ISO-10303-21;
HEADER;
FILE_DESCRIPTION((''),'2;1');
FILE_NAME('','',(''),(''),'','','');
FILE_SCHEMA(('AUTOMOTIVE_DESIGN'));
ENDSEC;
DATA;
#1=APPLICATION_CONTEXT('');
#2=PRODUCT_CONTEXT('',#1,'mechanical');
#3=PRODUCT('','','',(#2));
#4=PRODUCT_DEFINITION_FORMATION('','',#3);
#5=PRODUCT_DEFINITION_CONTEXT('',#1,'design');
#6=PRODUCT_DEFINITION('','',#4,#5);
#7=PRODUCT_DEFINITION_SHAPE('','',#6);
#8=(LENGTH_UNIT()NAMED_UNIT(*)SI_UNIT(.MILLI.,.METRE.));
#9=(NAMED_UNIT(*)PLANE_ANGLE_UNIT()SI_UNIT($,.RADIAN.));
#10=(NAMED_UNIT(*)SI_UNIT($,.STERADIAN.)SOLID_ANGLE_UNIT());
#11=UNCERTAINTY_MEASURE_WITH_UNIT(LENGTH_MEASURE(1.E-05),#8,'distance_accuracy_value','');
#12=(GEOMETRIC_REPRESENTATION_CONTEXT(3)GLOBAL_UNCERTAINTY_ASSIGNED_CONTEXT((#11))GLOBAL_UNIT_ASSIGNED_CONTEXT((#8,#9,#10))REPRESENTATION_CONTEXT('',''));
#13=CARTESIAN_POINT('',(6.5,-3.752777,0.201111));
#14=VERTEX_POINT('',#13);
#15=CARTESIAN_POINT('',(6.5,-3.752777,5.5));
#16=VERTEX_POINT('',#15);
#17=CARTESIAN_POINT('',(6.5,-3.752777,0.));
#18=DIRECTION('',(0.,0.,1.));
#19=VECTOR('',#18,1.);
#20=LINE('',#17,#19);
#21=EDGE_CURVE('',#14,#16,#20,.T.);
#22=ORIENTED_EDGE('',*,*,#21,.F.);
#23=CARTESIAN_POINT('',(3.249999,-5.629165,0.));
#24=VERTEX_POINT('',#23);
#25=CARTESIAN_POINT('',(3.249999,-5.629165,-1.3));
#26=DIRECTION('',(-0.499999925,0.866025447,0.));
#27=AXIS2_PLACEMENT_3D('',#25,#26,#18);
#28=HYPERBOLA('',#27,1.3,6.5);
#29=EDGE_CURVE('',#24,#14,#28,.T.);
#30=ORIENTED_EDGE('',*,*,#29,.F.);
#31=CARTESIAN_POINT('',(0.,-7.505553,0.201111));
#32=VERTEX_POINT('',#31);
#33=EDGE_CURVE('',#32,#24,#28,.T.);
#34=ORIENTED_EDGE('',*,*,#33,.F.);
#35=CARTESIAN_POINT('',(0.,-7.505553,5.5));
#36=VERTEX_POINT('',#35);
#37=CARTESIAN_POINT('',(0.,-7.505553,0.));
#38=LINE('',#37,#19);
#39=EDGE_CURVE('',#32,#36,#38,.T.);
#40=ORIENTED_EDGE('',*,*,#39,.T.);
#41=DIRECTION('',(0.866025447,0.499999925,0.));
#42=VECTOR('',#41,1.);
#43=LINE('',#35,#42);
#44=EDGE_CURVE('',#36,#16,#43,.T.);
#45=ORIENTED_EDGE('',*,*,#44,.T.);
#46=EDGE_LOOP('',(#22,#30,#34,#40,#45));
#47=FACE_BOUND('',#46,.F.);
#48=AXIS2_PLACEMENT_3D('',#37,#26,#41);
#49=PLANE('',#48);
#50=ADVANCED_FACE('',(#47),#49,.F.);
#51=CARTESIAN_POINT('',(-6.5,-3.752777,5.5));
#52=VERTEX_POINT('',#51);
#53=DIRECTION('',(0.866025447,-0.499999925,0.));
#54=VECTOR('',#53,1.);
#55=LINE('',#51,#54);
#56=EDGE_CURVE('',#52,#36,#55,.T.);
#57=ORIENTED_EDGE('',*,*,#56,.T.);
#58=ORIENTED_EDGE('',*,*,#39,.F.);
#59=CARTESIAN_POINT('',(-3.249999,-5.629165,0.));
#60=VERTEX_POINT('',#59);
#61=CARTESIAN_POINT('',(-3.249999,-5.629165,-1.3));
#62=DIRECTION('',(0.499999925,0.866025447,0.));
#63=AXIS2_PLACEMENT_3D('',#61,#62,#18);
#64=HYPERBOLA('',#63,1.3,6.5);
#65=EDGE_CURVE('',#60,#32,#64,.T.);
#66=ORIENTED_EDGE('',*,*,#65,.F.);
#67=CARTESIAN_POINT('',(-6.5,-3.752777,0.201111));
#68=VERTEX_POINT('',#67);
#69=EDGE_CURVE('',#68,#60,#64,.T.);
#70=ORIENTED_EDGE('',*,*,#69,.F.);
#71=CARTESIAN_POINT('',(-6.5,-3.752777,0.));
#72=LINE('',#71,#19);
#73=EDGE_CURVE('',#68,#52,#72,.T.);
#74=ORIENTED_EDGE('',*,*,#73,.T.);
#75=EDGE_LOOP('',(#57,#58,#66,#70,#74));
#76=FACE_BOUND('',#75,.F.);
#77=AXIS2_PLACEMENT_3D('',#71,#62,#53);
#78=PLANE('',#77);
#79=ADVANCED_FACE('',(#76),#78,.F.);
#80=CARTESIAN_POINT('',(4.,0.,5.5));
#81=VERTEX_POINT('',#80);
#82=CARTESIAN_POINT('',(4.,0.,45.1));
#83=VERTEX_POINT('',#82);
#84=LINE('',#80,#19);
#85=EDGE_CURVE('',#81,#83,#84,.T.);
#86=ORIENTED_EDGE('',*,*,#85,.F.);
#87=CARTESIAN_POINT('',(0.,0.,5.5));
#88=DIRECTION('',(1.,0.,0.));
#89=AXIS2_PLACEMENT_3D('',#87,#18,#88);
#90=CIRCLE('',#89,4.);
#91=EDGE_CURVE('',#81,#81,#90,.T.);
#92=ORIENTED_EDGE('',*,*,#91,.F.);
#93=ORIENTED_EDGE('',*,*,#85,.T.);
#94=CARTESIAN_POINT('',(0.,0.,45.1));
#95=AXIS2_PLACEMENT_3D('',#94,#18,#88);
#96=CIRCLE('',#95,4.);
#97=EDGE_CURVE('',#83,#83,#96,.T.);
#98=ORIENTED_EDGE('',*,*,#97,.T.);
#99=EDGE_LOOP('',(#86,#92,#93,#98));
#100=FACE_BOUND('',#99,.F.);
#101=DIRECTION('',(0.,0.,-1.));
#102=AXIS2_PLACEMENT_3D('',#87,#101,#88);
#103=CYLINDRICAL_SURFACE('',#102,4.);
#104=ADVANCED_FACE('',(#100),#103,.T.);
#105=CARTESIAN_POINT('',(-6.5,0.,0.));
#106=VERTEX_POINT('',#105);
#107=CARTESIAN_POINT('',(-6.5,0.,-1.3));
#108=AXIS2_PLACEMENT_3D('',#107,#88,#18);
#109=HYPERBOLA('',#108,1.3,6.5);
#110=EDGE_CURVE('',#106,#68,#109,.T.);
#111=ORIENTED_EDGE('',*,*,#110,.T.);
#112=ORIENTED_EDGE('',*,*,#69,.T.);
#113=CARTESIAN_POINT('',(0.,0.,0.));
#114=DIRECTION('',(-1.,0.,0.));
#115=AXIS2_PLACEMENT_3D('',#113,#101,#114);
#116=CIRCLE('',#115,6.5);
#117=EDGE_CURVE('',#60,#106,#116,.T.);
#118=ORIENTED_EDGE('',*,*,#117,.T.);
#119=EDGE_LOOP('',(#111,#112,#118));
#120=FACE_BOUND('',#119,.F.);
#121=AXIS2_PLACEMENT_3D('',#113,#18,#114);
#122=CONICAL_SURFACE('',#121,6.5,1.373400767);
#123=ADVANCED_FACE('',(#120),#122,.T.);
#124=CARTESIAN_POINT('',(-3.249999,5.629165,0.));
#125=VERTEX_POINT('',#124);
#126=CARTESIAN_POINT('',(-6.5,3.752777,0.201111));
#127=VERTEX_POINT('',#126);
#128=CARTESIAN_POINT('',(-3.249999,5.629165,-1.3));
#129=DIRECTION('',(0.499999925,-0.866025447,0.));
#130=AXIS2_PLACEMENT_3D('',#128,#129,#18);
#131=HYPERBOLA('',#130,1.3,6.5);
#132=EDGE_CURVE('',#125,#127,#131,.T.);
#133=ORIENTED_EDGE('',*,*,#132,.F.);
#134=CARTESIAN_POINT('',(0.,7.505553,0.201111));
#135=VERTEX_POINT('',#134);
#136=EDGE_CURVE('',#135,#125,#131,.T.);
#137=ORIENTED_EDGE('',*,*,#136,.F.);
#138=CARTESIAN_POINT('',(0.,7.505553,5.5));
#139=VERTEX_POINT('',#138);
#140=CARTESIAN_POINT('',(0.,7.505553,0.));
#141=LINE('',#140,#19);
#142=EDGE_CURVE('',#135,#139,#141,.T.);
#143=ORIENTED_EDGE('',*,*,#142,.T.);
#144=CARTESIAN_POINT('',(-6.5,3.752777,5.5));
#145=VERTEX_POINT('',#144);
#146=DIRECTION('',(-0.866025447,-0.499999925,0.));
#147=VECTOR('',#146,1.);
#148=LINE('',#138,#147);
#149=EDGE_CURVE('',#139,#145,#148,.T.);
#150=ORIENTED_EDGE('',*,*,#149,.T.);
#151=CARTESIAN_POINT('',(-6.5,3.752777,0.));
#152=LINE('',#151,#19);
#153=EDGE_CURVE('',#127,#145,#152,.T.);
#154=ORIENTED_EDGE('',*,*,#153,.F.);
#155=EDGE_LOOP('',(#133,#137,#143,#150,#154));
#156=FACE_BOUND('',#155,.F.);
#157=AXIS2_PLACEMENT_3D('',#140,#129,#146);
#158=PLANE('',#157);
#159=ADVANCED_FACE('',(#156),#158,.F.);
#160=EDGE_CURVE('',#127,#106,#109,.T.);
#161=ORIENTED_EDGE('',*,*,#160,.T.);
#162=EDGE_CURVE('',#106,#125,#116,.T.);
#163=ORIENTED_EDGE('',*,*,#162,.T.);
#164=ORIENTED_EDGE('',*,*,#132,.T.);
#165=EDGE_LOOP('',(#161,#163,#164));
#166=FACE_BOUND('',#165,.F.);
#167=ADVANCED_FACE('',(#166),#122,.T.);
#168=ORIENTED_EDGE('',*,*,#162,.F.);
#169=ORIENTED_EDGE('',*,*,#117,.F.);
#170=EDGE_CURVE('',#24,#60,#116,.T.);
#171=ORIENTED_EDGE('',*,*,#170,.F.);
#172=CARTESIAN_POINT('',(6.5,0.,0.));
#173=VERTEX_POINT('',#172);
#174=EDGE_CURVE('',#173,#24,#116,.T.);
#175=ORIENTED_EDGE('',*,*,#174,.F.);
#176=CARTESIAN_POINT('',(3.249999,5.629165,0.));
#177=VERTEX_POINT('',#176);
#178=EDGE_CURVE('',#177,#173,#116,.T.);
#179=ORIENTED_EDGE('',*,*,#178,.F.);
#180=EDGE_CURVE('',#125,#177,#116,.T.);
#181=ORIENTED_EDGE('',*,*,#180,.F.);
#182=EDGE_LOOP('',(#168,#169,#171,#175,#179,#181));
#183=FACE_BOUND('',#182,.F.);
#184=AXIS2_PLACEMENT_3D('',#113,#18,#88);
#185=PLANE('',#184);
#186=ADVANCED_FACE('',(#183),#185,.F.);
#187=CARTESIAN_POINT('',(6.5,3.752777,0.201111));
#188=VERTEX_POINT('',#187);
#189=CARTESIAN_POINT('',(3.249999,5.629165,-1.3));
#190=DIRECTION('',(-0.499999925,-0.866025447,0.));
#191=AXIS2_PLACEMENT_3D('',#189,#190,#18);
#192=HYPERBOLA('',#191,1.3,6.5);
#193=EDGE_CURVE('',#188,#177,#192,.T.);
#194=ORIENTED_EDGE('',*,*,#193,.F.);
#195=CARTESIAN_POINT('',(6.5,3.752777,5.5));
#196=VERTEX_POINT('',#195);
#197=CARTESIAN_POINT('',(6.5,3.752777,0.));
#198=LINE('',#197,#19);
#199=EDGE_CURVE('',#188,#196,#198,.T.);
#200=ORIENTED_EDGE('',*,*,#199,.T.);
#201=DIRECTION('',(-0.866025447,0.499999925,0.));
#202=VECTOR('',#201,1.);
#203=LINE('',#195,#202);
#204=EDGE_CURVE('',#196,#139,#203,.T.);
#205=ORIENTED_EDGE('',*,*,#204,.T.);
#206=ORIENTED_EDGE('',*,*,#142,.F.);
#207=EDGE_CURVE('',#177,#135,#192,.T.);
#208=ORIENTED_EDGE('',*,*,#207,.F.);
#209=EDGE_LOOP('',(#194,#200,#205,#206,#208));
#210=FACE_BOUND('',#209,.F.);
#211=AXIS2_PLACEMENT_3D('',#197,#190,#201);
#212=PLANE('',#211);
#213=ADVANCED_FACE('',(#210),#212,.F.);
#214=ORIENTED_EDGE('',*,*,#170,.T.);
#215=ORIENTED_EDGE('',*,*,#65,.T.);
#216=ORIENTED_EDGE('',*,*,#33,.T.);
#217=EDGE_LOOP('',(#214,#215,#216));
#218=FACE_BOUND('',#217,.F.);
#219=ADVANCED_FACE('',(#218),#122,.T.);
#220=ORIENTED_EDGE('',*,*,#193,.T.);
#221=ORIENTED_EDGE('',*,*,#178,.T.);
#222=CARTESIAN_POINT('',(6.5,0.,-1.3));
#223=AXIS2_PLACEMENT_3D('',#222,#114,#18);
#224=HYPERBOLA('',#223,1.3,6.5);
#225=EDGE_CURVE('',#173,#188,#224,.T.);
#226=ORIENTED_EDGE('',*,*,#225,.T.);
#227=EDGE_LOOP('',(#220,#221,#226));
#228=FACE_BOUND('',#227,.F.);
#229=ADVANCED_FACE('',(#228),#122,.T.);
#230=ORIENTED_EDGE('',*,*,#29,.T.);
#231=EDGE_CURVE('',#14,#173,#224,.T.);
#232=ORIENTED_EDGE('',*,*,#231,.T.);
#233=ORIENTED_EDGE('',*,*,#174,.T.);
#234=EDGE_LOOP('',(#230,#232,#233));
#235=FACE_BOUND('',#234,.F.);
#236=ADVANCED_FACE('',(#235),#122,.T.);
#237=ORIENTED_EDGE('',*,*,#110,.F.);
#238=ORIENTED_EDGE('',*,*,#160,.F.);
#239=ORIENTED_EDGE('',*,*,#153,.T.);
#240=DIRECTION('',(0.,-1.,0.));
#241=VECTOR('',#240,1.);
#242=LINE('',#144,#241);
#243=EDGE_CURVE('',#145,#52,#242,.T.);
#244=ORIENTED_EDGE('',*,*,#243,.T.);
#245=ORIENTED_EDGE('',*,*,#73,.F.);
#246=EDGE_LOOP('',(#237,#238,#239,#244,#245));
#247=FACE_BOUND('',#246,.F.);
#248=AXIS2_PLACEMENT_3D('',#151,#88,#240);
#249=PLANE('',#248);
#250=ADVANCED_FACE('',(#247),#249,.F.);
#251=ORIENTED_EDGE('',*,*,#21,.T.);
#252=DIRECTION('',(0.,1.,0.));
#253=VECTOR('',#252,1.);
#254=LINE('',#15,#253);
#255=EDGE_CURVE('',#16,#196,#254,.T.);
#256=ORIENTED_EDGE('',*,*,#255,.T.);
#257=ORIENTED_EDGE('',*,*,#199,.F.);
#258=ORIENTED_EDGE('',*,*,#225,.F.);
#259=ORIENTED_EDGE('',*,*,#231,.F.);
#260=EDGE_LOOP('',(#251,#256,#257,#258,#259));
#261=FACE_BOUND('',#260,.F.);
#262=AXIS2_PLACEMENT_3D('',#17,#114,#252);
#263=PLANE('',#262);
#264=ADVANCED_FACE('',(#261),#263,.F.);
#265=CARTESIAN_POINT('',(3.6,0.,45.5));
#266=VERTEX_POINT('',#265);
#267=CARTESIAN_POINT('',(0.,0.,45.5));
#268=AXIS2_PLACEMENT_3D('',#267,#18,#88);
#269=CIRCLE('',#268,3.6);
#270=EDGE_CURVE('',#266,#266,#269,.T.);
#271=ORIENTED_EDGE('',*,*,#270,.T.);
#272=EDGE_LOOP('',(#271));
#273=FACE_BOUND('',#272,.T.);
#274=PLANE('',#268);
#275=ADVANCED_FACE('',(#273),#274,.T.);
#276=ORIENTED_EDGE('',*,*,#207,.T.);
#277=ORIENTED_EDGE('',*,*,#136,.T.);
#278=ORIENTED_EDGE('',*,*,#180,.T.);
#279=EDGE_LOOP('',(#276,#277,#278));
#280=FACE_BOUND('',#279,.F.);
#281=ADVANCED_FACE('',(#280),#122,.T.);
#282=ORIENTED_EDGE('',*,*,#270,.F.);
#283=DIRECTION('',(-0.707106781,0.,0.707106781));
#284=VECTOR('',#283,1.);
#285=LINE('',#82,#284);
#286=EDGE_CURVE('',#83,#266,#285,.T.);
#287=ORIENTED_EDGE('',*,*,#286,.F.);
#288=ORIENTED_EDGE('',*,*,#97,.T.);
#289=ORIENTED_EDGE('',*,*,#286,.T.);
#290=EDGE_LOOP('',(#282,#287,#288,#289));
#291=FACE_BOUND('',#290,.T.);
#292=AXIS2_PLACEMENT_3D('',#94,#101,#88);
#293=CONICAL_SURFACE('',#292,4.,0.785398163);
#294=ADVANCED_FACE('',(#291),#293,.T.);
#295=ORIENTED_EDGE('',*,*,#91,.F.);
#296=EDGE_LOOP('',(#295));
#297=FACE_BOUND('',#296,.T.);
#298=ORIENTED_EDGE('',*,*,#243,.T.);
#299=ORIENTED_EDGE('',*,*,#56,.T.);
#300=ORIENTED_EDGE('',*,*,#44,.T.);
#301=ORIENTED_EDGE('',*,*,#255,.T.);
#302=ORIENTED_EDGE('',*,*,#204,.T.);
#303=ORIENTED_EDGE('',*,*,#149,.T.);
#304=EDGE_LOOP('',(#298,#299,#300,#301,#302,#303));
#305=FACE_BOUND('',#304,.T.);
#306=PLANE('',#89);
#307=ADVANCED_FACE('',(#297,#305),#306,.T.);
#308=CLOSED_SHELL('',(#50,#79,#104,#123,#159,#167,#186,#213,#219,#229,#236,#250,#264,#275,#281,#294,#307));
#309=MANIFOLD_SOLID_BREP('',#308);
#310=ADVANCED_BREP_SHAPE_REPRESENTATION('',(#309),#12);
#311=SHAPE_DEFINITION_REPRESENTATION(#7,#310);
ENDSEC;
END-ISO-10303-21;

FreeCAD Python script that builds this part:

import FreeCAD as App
import Part
import Sketcher
from FreeCAD import Vector
Q = App.Units.Quantity


def edges_at(feature, points):
    """Names of the edges that pass closest to the given points."""
    edges = feature.Shape.Edges
    near = lambda p: min(range(len(edges)), key=lambda i: edges[i].distToShape(Part.Vertex(*p))[0])
    return sorted({f"Edge{near(p) + 1}" for p in points})


def add_polygon(sketch, points):
    """Adds a closed chain of lines whose ends are joined by coincident constraints."""
    first, n = sketch.GeometryCount, len(points)
    for a, b in zip(points, points[1:] + points[:1]):
        sketch.addGeometry(Part.LineSegment(App.Vector(*a, 0), App.Vector(*b, 0)), False)
    for i in range(n):
        sketch.addConstraint(Sketcher.Constraint("Coincident", first + i, 2, first + (i + 1) % n, 1))

doc = App.newDocument("Part")
body = doc.addObject("PartDesign::Body", "Body")

# Sketch on XY plane
sketch1 = body.newObject("Sketcher::SketchObject", "Sketch")
sketch1.AttachmentSupport = (doc.getObject("XY_Plane"), [""])
sketch1.MapMode = "FlatFace"
add_polygon(sketch1, [(6.5, 3.752777), (0, 7.505553), (-6.5, 3.752777), (-6.5, -3.752777), (0, -7.505553), (6.5, -3.752777)])  # lines 0-5
sketch1.addConstraint(Sketcher.Constraint("Vertical", 2))
sketch1.addConstraint(Sketcher.Constraint("Vertical", 5))
sketch1.addConstraint(Sketcher.Constraint("Symmetric", 0, 2, 3, 2, -1, 1))
sketch1.addConstraint(Sketcher.Constraint("Symmetric", 1, 2, 4, 2, -1, 1))
sketch1.addConstraint(Sketcher.Constraint("PointOnObject", 0, 2, -2))
sketch1.addConstraint(Sketcher.Constraint("Parallel", 0, 3))
sketch1.addConstraint(Sketcher.Constraint("Horizontal", 2, 2, 4, 2))
sketch1.addConstraint(Sketcher.Constraint("Angle", 0, Q("150.000005 deg")))
sketch1.addConstraint(Sketcher.Constraint("DistanceX", 2, 2, 4, 2, 13.0))
sketch1.addConstraint(Sketcher.Constraint("DistanceY", 2, 2, 2, 1, 7.505554))
pad1 = body.newObject("PartDesign::Pad", "Pad")
pad1.Profile = sketch1
pad1.Length = 5.5

# Sketch on XY plane
sketch2 = body.newObject("Sketcher::SketchObject", "Sketch001")
sketch2.AttachmentSupport = (doc.getObject("XY_Plane"), [""])
sketch2.MapMode = "FlatFace"
sketch2.AttachmentOffset = App.Placement(Vector(0, 0, 5.5), App.Rotation())
sketch2.addGeometry(Part.Circle(Vector(0, 0, 0), Vector(0, 0, 1), 4), False)
sketch2.addConstraint(Sketcher.Constraint("Coincident", 0, 3, -1, 1))
sketch2.addConstraint(Sketcher.Constraint("Diameter", 0, 8.0))
pad2 = body.newObject("PartDesign::Pad", "Pad001")
pad2.Profile = sketch2
pad2.Length = 40
doc.recompute()

chamfer = body.newObject("PartDesign::Chamfer", "Chamfer")
chamfer.Base = (pad2, edges_at(pad2, [(-4, 0, 45.5)]))
chamfer.Size = 0.4

# Sketch on XZ plane
sketch3 = body.newObject("Sketcher::SketchObject", "Sketch002")
sketch3.AttachmentSupport = (doc.getObject("XZ_Plane"), [""])
sketch3.MapMode = "FlatFace"
add_polygon(sketch3, [(-11.5, 1), (-11.5, 0), (-6.5, 0)])  # lines 0-2
sketch3.addConstraint(Sketcher.Constraint("Vertical", 0))
sketch3.addConstraint(Sketcher.Constraint("Horizontal", 1))
sketch3.addConstraint(Sketcher.Constraint("PointOnObject", 0, 2, -1))
sketch3.addConstraint(Sketcher.Constraint("DistanceX", 1, 1, 1, 2, 5.0))
sketch3.addConstraint(Sketcher.Constraint("DistanceY", 0, 2, 0, 1, 1.0))
sketch3.addConstraint(Sketcher.Constraint("DistanceX", 0, 2, -1, 1, 11.5))
groove = body.newObject("PartDesign::Groove", "Groove")
groove.Profile = sketch3
groove.ReferenceAxis = (sketch3, ["V_Axis"])
groove.Angle = 360

doc.recompute()
